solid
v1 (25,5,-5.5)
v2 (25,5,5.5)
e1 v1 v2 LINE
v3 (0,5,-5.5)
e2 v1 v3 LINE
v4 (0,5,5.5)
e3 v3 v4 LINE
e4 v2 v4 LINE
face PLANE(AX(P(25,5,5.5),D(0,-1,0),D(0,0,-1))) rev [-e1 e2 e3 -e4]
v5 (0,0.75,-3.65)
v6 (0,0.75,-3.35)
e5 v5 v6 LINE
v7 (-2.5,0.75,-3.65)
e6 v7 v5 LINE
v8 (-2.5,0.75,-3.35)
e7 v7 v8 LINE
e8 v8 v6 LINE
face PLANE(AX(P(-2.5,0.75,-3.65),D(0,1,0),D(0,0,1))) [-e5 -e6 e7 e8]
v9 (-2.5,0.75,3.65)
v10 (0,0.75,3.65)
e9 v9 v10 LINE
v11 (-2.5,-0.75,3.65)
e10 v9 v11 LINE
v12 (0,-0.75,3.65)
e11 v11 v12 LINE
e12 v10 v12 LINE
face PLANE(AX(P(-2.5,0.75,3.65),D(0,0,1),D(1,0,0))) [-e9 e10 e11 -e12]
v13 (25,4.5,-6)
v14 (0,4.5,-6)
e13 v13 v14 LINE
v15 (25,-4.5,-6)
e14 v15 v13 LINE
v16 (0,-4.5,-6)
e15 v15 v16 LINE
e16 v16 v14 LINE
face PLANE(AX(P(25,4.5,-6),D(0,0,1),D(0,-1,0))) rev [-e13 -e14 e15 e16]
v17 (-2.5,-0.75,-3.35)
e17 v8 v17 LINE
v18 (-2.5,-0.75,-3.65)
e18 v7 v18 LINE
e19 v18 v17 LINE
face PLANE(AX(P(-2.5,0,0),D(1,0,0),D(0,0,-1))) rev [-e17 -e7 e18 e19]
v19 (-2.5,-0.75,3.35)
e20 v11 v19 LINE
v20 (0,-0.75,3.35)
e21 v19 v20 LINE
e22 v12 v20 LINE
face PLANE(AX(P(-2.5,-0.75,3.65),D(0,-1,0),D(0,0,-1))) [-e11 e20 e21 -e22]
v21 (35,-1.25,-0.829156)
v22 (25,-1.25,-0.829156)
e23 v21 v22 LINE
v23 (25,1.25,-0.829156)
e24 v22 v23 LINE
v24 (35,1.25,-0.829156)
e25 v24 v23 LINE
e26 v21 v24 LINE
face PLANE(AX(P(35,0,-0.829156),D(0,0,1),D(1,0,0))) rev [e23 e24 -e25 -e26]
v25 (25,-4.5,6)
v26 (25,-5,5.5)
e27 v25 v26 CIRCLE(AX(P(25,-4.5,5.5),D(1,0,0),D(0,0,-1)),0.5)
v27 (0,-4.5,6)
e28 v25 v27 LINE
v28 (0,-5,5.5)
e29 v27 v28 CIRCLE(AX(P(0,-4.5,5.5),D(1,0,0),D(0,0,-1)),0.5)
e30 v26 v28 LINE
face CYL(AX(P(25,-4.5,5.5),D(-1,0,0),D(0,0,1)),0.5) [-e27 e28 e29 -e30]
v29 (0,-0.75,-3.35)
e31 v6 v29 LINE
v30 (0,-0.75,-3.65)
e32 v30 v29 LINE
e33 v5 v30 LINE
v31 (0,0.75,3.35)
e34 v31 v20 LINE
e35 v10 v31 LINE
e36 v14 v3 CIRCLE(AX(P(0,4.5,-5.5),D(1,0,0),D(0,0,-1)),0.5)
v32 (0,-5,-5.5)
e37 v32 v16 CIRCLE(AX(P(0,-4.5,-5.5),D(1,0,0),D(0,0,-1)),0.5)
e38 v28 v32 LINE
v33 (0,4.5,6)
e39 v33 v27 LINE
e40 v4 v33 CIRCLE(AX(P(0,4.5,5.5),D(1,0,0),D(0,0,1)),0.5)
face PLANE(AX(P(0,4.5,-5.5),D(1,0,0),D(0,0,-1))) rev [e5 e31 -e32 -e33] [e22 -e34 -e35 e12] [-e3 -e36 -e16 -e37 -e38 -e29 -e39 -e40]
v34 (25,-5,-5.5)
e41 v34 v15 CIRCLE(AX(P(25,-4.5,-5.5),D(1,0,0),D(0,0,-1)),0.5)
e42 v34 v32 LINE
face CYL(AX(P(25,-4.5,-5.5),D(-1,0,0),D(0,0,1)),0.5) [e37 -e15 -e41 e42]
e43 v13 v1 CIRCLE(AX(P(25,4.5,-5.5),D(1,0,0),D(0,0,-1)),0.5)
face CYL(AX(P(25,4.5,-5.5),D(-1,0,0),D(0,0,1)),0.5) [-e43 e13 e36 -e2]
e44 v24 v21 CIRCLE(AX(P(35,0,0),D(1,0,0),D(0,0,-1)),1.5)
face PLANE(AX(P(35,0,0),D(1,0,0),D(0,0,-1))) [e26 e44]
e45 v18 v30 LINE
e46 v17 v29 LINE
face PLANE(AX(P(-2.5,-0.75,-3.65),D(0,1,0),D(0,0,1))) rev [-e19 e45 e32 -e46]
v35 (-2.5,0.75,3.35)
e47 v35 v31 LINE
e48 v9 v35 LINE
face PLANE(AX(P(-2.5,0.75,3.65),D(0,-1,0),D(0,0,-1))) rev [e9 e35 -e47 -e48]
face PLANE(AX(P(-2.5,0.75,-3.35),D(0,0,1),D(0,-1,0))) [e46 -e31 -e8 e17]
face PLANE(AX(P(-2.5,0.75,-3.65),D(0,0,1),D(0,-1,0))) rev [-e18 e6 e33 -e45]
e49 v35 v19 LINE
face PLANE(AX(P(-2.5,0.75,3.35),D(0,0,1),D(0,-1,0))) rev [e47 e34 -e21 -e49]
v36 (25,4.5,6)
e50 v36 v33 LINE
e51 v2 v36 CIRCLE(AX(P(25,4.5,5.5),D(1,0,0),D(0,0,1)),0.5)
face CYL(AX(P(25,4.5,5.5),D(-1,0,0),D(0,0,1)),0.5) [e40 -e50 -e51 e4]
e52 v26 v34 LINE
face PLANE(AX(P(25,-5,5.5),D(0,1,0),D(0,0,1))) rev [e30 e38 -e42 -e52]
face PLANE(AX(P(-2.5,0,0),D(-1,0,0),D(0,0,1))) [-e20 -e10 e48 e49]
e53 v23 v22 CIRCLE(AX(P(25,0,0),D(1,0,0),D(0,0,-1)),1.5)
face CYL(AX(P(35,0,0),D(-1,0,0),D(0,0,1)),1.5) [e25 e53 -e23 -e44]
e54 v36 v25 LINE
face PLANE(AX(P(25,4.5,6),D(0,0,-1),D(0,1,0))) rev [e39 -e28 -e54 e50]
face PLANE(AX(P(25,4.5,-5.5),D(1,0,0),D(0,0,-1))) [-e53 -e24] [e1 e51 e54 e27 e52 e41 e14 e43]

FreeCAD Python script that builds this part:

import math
import FreeCAD as App
import Part
import Sketcher


def add_polygon(sketch, points):
    """Adds a closed chain of lines whose ends are joined by coincident constraints."""
    first, n = sketch.GeometryCount, len(points)
    for a, b in zip(points, points[1:] + points[:1]):
        sketch.addGeometry(Part.LineSegment(App.Vector(*a, 0), App.Vector(*b, 0)), False)
    for i in range(n):
        sketch.addConstraint(Sketcher.Constraint("Coincident", first + i, 2, first + (i + 1) % n, 1))

doc = App.newDocument("Part")
params = doc.addObject("Spreadsheet::Sheet", "Params")
for row, (alias, value) in enumerate([
    ("sketch1_radius", "0.5 mm"),
    ("sketch1_width", "9 mm"),
    ("sketch1_height", "11 mm"),
    ("pad1_length", "25 mm"),
    ("sketch2_radius", "1.5 mm"),
    ("sketch2_width", "2.5 mm"),
    ("pad2_length", "10 mm"),
    ("sketch3_width", "1.5 mm"),
    ("sketch3_height", "0.3 mm"),
    ("pad3_length", "2.5 mm"),
], start=1):
    params.set(f"A{row}", alias)
    params.set(f"B{row}", "=" + value)
    params.setAlias(f"B{row}", alias)

body = doc.addObject("PartDesign::Body", "Body")

sketch1 = body.newObject("Sketcher::SketchObject", "Sketch")
sketch1.AttachmentSupport = (doc.getObject("YZ_Plane"), [""])
sketch1.MapMode = "FlatFace"
sketch1.addGeometry([
    Part.LineSegment(App.Vector(5, -5.5, 0), App.Vector(5, 5.5, 0)),
    Part.ArcOfCircle(Part.Circle(App.Vector(4.5, 5.5, 0), App.Vector(0, 0, 1), 0.5), math.radians(0), math.radians(90)),
    Part.LineSegment(App.Vector(4.5, 6, 0), App.Vector(-4.5, 6, 0)),
    Part.ArcOfCircle(Part.Circle(App.Vector(-4.5, 5.5, 0), App.Vector(0, 0, 1), 0.5), math.radians(90), math.radians(180)),
    Part.LineSegment(App.Vector(-5, 5.5, 0), App.Vector(-5, -5.5, 0)),
    Part.ArcOfCircle(Part.Circle(App.Vector(-4.5, -5.5, 0), App.Vector(0, 0, 1), 0.5), math.radians(180), math.radians(270)),
    Part.LineSegment(App.Vector(-4.5, -6, 0), App.Vector(4.5, -6, 0)),
    Part.ArcOfCircle(Part.Circle(App.Vector(4.5, -5.5, 0), App.Vector(0, 0, 1), 0.5), math.radians(-90), math.radians(0)),
], False)
sketch1.addConstraint([
    Sketcher.Constraint("Tangent", 0, 2, 1, 1),
    Sketcher.Constraint("Tangent", 1, 2, 2, 1),
    Sketcher.Constraint("Tangent", 2, 2, 3, 1),
    Sketcher.Constraint("Tangent", 3, 2, 4, 1),
    Sketcher.Constraint("Tangent", 4, 2, 5, 1),
    Sketcher.Constraint("Tangent", 5, 2, 6, 1),
    Sketcher.Constraint("Tangent", 6, 2, 7, 1),
    Sketcher.Constraint("Tangent", 7, 2, 0, 1),
    Sketcher.Constraint("Vertical", 0),
    Sketcher.Constraint("Horizontal", 2),
    Sketcher.Constraint("Vertical", 4),
    Sketcher.Constraint("Horizontal", 6),
    Sketcher.Constraint("Equal", 1, 3),
    Sketcher.Constraint("Equal", 3, 5),
    Sketcher.Constraint("Equal", 5, 7),
    Sketcher.Constraint("Symmetric", 1, 3, 5, 3, -1, 1),
    Sketcher.Constraint("Radius", 1, 0.5),
    Sketcher.Constraint("DistanceX", 2, 2, 2, 1, 9.0),
    Sketcher.Constraint("DistanceY", 0, 1, 0, 2, 11.0),
])
sketch1.setExpression("Constraints[16]", "Params.sketch1_radius")
sketch1.setExpression("Constraints[17]", "Params.sketch1_width")
sketch1.setExpression("Constraints[18]", "Params.sketch1_height")
pad1 = body.newObject("PartDesign::Pad", "Pad")
pad1.Profile = sketch1
pad1.setExpression("Length", "Params.pad1_length")

sketch2 = body.newObject("Sketcher::SketchObject", "Sketch001")
sketch2.AttachmentSupport = (doc.getObject("YZ_Plane"), [""])
sketch2.MapMode = "FlatFace"
sketch2.AttachmentOffset = App.Placement(App.Vector(0, 0, 25), App.Rotation())
sketch2.addGeometry([
    Part.ArcOfCircle(Part.Circle(App.Vector(0, 0, 0), App.Vector(0, 0, 1), 1.5), math.radians(-33.55731), math.radians(0)),
    Part.ArcOfCircle(Part.Circle(App.Vector(0, 0, 0), App.Vector(0, 0, 1), 1.5), math.radians(0), math.radians(180)),
    Part.ArcOfCircle(Part.Circle(App.Vector(0, 0, 0), App.Vector(0, 0, 1), 1.5), math.radians(180), math.radians(213.55731)),
    Part.LineSegment(App.Vector(-1.25, -0.829156, 0), App.Vector(1.25, -0.829156, 0)),
], False)
sketch2.addConstraint([
    Sketcher.Constraint("Tangent", 0, 2, 1, 1),
    Sketcher.Constraint("Tangent", 1, 2, 2, 1),
    Sketcher.Constraint("Coincident", 2, 2, 3, 1),
    Sketcher.Constraint("Coincident", 3, 2, 0, 1),
    Sketcher.Constraint("Horizontal", 3),
    Sketcher.Constraint("Coincident", 0, 3, -1, 1),
    Sketcher.Constraint("Equal", 0, 1),
    Sketcher.Constraint("Equal", 1, 2),
    Sketcher.Constraint("PointOnObject", 0, 2, -1),
    Sketcher.Constraint("PointOnObject", 1, 2, -1),
    Sketcher.Constraint("Radius", 0, 1.5),
    Sketcher.Constraint("DistanceX", 3, 1, 3, 2, 2.5),
])
sketch2.setExpression("Constraints[10]", "Params.sketch2_radius")
sketch2.setExpression("Constraints[11]", "Params.sketch2_width")
pad2 = body.newObject("PartDesign::Pad", "Pad001")
pad2.Profile = sketch2
pad2.setExpression("Length", "Params.pad2_length")

sketch3 = body.newObject("Sketcher::SketchObject", "Sketch002")
sketch3.AttachmentSupport = (doc.getObject("YZ_Plane"), [""])
sketch3.MapMode = "FlatFace"
add_polygon(sketch3, [(0.75, -3.65), (-0.75, -3.65), (-0.75, -3.35), (0.75, -3.35)])
add_polygon(sketch3, [(0.75, 3.35), (-0.75, 3.35), (-0.75, 3.65), (0.75, 3.65)])
sketch3.addConstraint([
    Sketcher.Constraint("Horizontal", 0),
    Sketcher.Constraint("Vertical", 1),
    Sketcher.Constraint("Horizontal", 2),
    Sketcher.Constraint("Vertical", 3),
    Sketcher.Constraint("Horizontal", 4),
    Sketcher.Constraint("Vertical", 5),
    Sketcher.Constraint("Horizontal", 6),
    Sketcher.Constraint("Vertical", 7),
    Sketcher.Constraint("Symmetric", 2, 2, 4, 2, -1, 1),
    Sketcher.Constraint("Symmetric", 0, 2, 6, 2, -1, 1),
    Sketcher.Constraint("Vertical", 1, 2, 4, 2),
    Sketcher.Constraint("DistanceX", 0, 2, 0, 1, 1.5),
    Sketcher.Constraint("DistanceY", 1, 1, 1, 2, 0.3),
    Sketcher.Constraint("DistanceY", 0, 2, 4, 2, 7.0),
])
sketch3.setExpression("Constraints[19]", "Params.sketch3_width")
sketch3.setExpression("Constraints[20]", "Params.sketch3_height")
pad3 = body.newObject("PartDesign::Pad", "Pad002")
pad3.Profile = sketch3
pad3.setExpression("Length", "Params.pad3_length")
pad3.Reversed = True

doc.recompute()
